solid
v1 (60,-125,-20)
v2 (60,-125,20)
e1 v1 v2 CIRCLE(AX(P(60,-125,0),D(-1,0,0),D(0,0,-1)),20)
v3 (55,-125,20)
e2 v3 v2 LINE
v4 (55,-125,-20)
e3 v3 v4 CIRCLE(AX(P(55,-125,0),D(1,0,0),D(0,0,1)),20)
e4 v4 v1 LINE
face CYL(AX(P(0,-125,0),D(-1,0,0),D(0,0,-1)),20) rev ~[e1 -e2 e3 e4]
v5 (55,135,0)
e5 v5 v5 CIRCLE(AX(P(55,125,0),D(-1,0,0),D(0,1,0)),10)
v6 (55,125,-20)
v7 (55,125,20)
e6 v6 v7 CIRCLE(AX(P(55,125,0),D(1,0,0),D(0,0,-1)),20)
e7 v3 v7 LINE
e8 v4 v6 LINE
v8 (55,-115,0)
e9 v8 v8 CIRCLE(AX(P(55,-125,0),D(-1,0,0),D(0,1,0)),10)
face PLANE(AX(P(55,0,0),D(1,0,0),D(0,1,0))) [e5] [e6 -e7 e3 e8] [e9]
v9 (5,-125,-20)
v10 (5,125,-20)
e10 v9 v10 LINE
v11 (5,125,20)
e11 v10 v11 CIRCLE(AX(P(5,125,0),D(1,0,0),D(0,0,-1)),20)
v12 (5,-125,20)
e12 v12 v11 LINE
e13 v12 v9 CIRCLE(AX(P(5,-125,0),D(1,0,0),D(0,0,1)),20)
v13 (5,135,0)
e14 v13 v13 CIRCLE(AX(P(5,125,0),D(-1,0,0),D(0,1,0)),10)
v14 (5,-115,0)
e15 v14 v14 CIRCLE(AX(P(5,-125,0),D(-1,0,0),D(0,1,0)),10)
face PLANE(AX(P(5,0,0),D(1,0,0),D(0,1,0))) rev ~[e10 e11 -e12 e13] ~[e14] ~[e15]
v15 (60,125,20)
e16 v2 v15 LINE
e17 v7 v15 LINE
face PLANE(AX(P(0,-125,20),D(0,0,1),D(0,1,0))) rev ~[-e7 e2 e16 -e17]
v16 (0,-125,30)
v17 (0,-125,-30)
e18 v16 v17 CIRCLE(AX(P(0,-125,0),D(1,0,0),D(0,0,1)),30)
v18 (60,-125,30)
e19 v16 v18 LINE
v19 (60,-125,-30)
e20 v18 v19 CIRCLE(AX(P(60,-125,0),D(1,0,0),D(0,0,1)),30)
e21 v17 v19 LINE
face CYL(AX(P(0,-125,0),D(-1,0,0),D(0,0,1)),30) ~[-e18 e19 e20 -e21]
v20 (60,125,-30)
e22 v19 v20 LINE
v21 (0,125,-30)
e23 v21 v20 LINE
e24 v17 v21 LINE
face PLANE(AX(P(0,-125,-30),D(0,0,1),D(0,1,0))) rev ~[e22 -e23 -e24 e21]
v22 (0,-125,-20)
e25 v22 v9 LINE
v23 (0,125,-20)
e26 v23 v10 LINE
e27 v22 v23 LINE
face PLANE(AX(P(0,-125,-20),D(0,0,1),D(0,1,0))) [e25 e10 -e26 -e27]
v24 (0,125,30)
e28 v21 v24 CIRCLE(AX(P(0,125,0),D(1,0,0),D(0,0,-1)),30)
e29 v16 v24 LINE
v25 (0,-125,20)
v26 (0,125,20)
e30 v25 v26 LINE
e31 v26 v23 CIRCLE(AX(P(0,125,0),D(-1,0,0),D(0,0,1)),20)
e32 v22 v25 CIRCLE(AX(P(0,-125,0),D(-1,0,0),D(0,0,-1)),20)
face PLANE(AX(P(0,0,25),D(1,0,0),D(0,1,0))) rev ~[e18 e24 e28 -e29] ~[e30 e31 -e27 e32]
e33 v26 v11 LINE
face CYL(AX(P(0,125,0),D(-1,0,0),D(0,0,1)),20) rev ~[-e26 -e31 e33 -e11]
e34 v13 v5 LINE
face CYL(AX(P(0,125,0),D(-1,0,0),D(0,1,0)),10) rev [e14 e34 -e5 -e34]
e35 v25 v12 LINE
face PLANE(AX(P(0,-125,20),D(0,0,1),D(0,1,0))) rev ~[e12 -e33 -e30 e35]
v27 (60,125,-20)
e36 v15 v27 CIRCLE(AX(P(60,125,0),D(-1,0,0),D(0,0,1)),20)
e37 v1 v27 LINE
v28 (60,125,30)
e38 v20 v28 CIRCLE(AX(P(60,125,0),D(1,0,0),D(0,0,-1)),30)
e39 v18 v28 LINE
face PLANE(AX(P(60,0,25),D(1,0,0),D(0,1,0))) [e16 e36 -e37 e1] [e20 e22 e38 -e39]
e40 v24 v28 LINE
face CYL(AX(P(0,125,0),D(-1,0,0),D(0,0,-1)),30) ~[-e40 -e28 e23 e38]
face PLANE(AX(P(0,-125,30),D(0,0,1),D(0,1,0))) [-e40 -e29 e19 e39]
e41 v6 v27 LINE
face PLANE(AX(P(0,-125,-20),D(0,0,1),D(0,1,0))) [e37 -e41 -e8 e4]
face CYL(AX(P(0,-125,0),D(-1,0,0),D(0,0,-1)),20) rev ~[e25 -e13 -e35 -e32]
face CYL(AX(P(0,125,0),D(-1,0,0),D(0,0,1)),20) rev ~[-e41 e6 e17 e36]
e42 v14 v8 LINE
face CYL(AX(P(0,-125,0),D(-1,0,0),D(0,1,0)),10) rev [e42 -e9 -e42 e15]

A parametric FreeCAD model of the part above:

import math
import FreeCAD as App
import Part
import Sketcher

V = App.Vector

doc = App.newDocument("Part")
params = doc.addObject("Spreadsheet::Sheet", "Params")
for row, (alias, value) in enumerate([
    ("sketch1_radius", "30 mm"),
    ("sketch1_radius2", "20 mm"),
    ("sketch1_width", "250 mm"),
    ("pad1_length", "60 mm"),
    ("sketch2_radius", "20 mm"),
    ("sketch2_width", "250 mm"),
    ("pad2_length", "50 mm"),
    ("sketch3_diameter", "20 mm"),
], start=1):
    params.set(f"A{row}", alias)
    params.set(f"B{row}", "=" + value)
    params.setAlias(f"B{row}", alias)

body = doc.addObject("PartDesign::Body", "Body")

# Sketch on YZ plane
sketch1 = doc.addObject("Sketcher::SketchObject", "Sketch")
body.addObject(sketch1)
sketch1.AttachmentSupport = (doc.YZ_Plane, [""])
sketch1.MapMode = "FlatFace"
sketch1.addGeometry([
    Part.ArcOfCircle(Part.Circle(V(125, 0, 0), V(0, 0, 1), 30), math.radians(-90), math.radians(90)),  # 0
    Part.LineSegment(V(125, 30, 0), V(-125, 30, 0)),  # 1
    Part.ArcOfCircle(Part.Circle(V(-125, 0, 0), V(0, 0, 1), 30), math.radians(90), math.radians(270)),  # 2
    Part.LineSegment(V(-125, -30, 0), V(125, -30, 0)),  # 3
    Part.LineSegment(V(-125, 20, 0), V(125, 20, 0)),  # 4
    Part.ArcOfCircle(Part.Circle(V(125, 0, 0), V(0, 0, 1), 20), math.radians(-90), math.radians(90)),  # 5
    Part.LineSegment(V(125, -20, 0), V(-125, -20, 0)),  # 6
    Part.ArcOfCircle(Part.Circle(V(-125, 0, 0), V(0, 0, 1), 20), math.radians(90), math.radians(270)),  # 7
], False)
sketch1.addConstraint([
    Sketcher.Constraint("Tangent", 0, 2, 1, 1),
    Sketcher.Constraint("Tangent", 1, 2, 2, 1),
    Sketcher.Constraint("Tangent", 2, 2, 3, 1),
    Sketcher.Constraint("Tangent", 3, 2, 0, 1),
    Sketcher.Constraint("Tangent", 4, 2, 5, 2),
    Sketcher.Constraint("Tangent", 5, 1, 6, 1),
    Sketcher.Constraint("Tangent", 6, 2, 7, 2),
    Sketcher.Constraint("Tangent", 7, 1, 4, 1),
    Sketcher.Constraint("Horizontal", 1),
    Sketcher.Constraint("Horizontal", 3),
    Sketcher.Constraint("Horizontal", 4),
    Sketcher.Constraint("Horizontal", 6),
    Sketcher.Constraint("Coincident", 5, 3, 0, 3),
    Sketcher.Constraint("Symmetric", 0, 3, 2, 3, -1, 1),
    Sketcher.Constraint("Vertical", 7, 3, 1, 2),
    Sketcher.Constraint("Radius", 0, 30.0),
    Sketcher.Constraint("Radius", 5, 20.0),
    Sketcher.Constraint("DistanceX", 1, 2, 1, 1, 250.0),
])
sketch1.setExpression("Constraints[15]", "Params.sketch1_radius")
sketch1.setExpression("Constraints[16]", "Params.sketch1_radius2")
sketch1.setExpression("Constraints[17]", "Params.sketch1_width")
pad1 = doc.addObject("PartDesign::Pad", "Pad")
body.addObject(pad1)
pad1.Profile = sketch1
pad1.setExpression("Length", "Params.pad1_length")

# Sketch on YZ plane
sketch2 = doc.addObject("Sketcher::SketchObject", "Sketch001")
body.addObject(sketch2)
sketch2.AttachmentSupport = (doc.YZ_Plane, [""])
sketch2.MapMode = "FlatFace"
sketch2.AttachmentOffset = App.Placement(V(0, 0, 5), App.Rotation())
sketch2.addGeometry([
    Part.LineSegment(V(-125, -20, 0), V(125, -20, 0)),
    Part.ArcOfCircle(Part.Circle(V(125, 0, 0), V(0, 0, 1), 20), math.radians(-90), math.radians(90)),
    Part.LineSegment(V(125, 20, 0), V(-125, 20, 0)),
    Part.ArcOfCircle(Part.Circle(V(-125, 0, 0), V(0, 0, 1), 20), math.radians(90), math.radians(270)),
], False)
sketch2.addConstraint([
    Sketcher.Constraint("Tangent", 0, 2, 1, 1),
    Sketcher.Constraint("Tangent", 1, 2, 2, 1),
    Sketcher.Constraint("Tangent", 2, 2, 3, 1),
    Sketcher.Constraint("Tangent", 3, 2, 0, 1),
    Sketcher.Constraint("Horizontal", 0),
    Sketcher.Constraint("Horizontal", 2),
    Sketcher.Constraint("Symmetric", 1, 3, 3, 3, -1, 1),
    Sketcher.Constraint("Radius", 1, 20.0),
    Sketcher.Constraint("DistanceX", 0, 1, 0, 2, 250.0),
])
sketch2.setExpression("Constraints[7]", "Params.sketch2_radius")
sketch2.setExpression("Constraints[8]", "Params.sketch2_width")
pad2 = doc.addObject("PartDesign::Pad", "Pad001")
body.addObject(pad2)
pad2.Profile = sketch2
pad2.setExpression("Length", "Params.pad2_length")

# Sketch on YZ plane
sketch3 = doc.addObject("Sketcher::SketchObject", "Sketch002")
body.addObject(sketch3)
sketch3.AttachmentSupport = (doc.YZ_Plane, [""])
sketch3.MapMode = "FlatFace"
sketch3.addGeometry([
    Part.Circle(V(-125, 0, 0), V(0, 0, 1), 10),
    Part.Circle(V(125, 0, 0), V(0, 0, 1), 10),
], False)
sketch3.addConstraint([
    Sketcher.Constraint("Equal", 0, 1),
    Sketcher.Constraint("Symmetric", 0, 3, 1, 3, -1, 1),
    Sketcher.Constraint("PointOnObject", 0, 3, -1),
    Sketcher.Constraint("Diameter", 0, 20.0),
    Sketcher.Constraint("DistanceX", 0, 3, -1, 1, 125.0),
])
sketch3.setExpression("Constraints[3]", "Params.sketch3_diameter")
pocket1 = doc.addObject("PartDesign::Pocket", "Pocket")
body.addObject(pocket1)
pocket1.Profile = sketch3
pocket1.Type = "ThroughAll"
pocket1.Reversed = True

doc.recompute()
